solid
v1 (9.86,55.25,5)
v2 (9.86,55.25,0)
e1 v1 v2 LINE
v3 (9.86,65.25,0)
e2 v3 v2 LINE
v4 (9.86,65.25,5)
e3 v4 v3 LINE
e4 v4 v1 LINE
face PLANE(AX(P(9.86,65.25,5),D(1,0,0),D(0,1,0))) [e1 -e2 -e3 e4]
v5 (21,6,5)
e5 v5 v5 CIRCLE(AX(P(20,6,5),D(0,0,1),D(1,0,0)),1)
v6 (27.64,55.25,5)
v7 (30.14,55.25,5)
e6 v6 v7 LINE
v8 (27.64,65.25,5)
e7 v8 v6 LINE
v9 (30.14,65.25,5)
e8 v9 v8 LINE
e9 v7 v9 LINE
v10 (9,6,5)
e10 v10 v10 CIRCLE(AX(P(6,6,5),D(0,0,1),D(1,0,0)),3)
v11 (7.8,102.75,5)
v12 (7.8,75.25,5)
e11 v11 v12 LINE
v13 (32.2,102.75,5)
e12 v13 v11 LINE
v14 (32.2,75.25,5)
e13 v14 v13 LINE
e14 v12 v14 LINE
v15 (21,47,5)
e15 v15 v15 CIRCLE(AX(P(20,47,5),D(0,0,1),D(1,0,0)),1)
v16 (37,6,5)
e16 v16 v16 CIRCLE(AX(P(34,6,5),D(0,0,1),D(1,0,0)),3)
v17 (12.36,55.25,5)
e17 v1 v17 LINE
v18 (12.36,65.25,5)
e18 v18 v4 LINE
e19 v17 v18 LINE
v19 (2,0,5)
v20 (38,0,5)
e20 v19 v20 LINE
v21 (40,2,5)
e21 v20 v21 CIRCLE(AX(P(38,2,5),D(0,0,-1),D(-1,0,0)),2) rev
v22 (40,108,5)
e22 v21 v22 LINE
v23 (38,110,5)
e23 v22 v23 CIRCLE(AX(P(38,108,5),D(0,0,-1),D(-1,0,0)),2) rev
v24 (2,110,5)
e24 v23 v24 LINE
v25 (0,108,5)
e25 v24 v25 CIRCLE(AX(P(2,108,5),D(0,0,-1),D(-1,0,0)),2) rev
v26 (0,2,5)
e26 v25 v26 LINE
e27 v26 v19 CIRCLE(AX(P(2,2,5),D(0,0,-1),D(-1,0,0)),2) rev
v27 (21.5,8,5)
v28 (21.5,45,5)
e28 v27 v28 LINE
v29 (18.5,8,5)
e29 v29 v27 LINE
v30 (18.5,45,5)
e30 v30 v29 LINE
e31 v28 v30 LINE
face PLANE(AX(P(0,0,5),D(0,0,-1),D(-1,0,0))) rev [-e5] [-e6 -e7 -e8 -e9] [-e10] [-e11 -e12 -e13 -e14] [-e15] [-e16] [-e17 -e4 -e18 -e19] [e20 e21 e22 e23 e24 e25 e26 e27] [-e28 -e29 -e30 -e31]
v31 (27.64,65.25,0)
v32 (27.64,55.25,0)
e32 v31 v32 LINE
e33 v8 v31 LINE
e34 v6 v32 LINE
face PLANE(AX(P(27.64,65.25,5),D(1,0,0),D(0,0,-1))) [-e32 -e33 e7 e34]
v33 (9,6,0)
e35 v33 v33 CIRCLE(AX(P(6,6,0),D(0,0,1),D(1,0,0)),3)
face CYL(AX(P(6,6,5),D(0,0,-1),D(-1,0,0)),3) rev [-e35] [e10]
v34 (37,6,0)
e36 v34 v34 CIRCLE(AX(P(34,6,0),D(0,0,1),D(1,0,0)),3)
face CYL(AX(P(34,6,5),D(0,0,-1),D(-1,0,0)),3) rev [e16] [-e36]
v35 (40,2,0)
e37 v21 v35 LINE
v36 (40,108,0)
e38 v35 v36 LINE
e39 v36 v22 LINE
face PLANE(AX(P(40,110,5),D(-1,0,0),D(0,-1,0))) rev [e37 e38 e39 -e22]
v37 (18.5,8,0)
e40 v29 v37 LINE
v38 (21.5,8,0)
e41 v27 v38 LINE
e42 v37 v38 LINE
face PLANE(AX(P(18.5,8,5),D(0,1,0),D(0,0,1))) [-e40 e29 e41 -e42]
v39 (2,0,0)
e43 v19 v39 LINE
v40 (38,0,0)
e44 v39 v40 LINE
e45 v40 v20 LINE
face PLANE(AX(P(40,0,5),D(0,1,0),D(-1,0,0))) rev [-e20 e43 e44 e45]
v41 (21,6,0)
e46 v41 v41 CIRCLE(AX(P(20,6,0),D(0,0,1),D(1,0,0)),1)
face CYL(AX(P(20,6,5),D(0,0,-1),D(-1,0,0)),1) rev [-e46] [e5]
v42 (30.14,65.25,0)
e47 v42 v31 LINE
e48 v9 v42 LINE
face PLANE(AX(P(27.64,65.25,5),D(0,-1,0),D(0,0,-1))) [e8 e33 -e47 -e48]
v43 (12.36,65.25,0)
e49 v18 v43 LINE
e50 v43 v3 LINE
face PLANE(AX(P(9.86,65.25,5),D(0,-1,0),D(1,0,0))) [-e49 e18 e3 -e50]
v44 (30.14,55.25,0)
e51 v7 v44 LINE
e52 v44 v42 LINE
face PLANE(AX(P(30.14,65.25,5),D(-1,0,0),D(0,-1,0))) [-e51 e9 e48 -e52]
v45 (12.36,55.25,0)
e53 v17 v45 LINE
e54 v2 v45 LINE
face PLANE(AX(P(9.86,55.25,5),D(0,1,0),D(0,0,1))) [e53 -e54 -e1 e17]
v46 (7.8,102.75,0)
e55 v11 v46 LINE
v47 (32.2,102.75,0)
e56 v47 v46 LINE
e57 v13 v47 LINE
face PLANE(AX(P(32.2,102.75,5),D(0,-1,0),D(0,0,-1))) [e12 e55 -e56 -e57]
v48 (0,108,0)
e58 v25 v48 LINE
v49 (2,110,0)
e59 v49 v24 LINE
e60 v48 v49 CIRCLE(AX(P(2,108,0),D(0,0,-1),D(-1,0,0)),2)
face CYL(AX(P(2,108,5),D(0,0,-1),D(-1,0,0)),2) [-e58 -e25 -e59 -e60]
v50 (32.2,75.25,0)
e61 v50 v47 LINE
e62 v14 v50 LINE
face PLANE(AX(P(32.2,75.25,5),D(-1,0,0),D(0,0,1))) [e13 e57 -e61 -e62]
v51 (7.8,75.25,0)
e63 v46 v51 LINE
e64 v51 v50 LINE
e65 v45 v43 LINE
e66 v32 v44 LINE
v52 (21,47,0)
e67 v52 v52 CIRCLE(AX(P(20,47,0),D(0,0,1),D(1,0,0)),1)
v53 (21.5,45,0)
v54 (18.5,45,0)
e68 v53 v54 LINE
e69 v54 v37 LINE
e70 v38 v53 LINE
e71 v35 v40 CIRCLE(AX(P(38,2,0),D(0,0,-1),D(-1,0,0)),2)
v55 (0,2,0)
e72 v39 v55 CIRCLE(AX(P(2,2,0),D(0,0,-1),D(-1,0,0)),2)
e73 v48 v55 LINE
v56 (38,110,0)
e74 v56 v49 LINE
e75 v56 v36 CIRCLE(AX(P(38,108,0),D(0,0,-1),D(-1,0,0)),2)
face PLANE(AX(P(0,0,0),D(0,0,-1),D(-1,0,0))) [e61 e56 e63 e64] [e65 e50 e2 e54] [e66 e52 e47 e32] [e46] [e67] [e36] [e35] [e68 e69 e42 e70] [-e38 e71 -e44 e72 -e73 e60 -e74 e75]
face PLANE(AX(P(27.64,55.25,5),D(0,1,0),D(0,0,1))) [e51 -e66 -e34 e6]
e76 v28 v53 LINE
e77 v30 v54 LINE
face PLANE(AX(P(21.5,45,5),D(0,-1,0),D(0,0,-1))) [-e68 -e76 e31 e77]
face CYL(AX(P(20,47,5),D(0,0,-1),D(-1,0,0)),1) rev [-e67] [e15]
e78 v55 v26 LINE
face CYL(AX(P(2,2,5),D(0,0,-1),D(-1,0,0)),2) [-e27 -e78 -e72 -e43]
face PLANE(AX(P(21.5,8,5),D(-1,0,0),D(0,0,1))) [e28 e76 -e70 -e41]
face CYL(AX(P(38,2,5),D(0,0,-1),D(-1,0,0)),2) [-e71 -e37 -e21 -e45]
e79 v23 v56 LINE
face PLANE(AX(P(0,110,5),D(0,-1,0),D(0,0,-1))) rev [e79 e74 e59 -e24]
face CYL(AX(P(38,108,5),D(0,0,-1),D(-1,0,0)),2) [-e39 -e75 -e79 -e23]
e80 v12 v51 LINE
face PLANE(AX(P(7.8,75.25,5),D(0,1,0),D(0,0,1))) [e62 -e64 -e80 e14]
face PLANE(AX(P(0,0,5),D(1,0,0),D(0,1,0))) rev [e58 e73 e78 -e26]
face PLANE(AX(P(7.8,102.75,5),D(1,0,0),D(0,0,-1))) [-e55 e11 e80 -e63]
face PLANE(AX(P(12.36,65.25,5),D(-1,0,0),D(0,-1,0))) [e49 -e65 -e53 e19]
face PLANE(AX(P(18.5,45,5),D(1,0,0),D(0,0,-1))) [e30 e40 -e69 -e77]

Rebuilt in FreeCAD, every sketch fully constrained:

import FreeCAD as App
import Part
import Sketcher

V = App.Vector


def edges_at(feature, points):
    """Names of the edges that pass closest to the given points."""
    edges = feature.Shape.Edges
    near = lambda p: min(range(len(edges)), key=lambda i: edges[i].distToShape(Part.Vertex(*p))[0])
    return sorted({f"Edge{near(p) + 1}" for p in points})

doc = App.newDocument("Part")
params = doc.addObject("Spreadsheet::Sheet", "Params")
for row, (alias, value) in enumerate([
    ("sketch1_diameter", "6 mm"),
    ("sketch1_diameter2", "2 mm"),
    ("sketch1_width", "40 mm"),
    ("sketch1_width2", "3 mm"),
    ("sketch1_height", "110 mm"),
    ("pad1_length", "5 mm"),
    ("fillet_radius", "2 mm"),
], start=1):
    params.set(f"A{row}", alias)
    params.set(f"B{row}", "=" + value)
    params.setAlias(f"B{row}", alias)

body = doc.addObject("PartDesign::Body", "Body")

sketch1 = body.newObject("Sketcher::SketchObject", "Sketch")
sketch1.AttachmentSupport = (doc.getObject("XY_Plane"), [""])
sketch1.MapMode = "FlatFace"
sketch1.addGeometry([
    Part.LineSegment(V(0, 110, 0), V(0, 0, 0)),
    Part.LineSegment(V(0, 0, 0), V(40, 0, 0)),
    Part.LineSegment(V(40, 0, 0), V(40, 110, 0)),
    Part.LineSegment(V(40, 110, 0), V(0, 110, 0)),
    Part.Circle(V(6, 6, 0), V(0, 0, 1), 3),
    Part.Circle(V(20, 6, 0), V(0, 0, 1), 1),
    Part.LineSegment(V(21.5, 8, 0), V(18.5, 8, 0)),
    Part.LineSegment(V(18.5, 8, 0), V(18.5, 45, 0)),
    Part.LineSegment(V(18.5, 45, 0), V(21.5, 45, 0)),
    Part.LineSegment(V(21.5, 45, 0), V(21.5, 8, 0)),
    Part.Circle(V(34, 6, 0), V(0, 0, 1), 3),
    Part.Circle(V(20, 47, 0), V(0, 0, 1), 1),
    Part.LineSegment(V(12.4, 55.2, 0), V(9.9, 55.2, 0)),
    Part.LineSegment(V(9.9, 55.2, 0), V(9.9, 65.2, 0)),
    Part.LineSegment(V(9.9, 65.2, 0), V(12.4, 65.2, 0)),
    Part.LineSegment(V(12.4, 65.2, 0), V(12.4, 55.2, 0)),
    Part.LineSegment(V(30.1, 55.2, 0), V(27.6, 55.2, 0)),
    Part.LineSegment(V(27.6, 55.2, 0), V(27.6, 65.2, 0)),
    Part.LineSegment(V(27.6, 65.2, 0), V(30.1, 65.2, 0)),
    Part.LineSegment(V(30.1, 65.2, 0), V(30.1, 55.2, 0)),
    Part.LineSegment(V(32.2, 75.2, 0), V(7.8, 75.2, 0)),
    Part.LineSegment(V(7.8, 75.2, 0), V(7.8, 102.8, 0)),
    Part.LineSegment(V(7.8, 102.8, 0), V(32.2, 102.8, 0)),
    Part.LineSegment(V(32.2, 102.8, 0), V(32.2, 75.2, 0)),
], False)
sketch1.addConstraint([
    Sketcher.Constraint("Coincident", 0, 2, 1, 1),
    Sketcher.Constraint("Coincident", 1, 2, 2, 1),
    Sketcher.Constraint("Coincident", 2, 2, 3, 1),
    Sketcher.Constraint("Coincident", 3, 2, 0, 1),
    Sketcher.Constraint("Coincident", 6, 2, 7, 1),
    Sketcher.Constraint("Coincident", 7, 2, 8, 1),
    Sketcher.Constraint("Coincident", 8, 2, 9, 1),
    Sketcher.Constraint("Coincident", 9, 2, 6, 1),
    Sketcher.Constraint("Coincident", 12, 2, 13, 1),
    Sketcher.Constraint("Coincident", 13, 2, 14, 1),
    Sketcher.Constraint("Coincident", 14, 2, 15, 1),
    Sketcher.Constraint("Coincident", 15, 2, 12, 1),
    Sketcher.Constraint("Coincident", 16, 2, 17, 1),
    Sketcher.Constraint("Coincident", 17, 2, 18, 1),
    Sketcher.Constraint("Coincident", 18, 2, 19, 1),
    Sketcher.Constraint("Coincident", 19, 2, 16, 1),
    Sketcher.Constraint("Coincident", 20, 2, 21, 1),
    Sketcher.Constraint("Coincident", 21, 2, 22, 1),
    Sketcher.Constraint("Coincident", 22, 2, 23, 1),
    Sketcher.Constraint("Coincident", 23, 2, 20, 1),
    Sketcher.Constraint("Vertical", 0),
    Sketcher.Constraint("Horizontal", 1),
    Sketcher.Constraint("Vertical", 2),
    Sketcher.Constraint("Horizontal", 3),
    Sketcher.Constraint("Horizontal", 6),
    Sketcher.Constraint("Vertical", 7),
    Sketcher.Constraint("Horizontal", 8),
    Sketcher.Constraint("Vertical", 9),
    Sketcher.Constraint("Horizontal", 12),
    Sketcher.Constraint("Vertical", 13),
    Sketcher.Constraint("Horizontal", 14),
    Sketcher.Constraint("Vertical", 15),
    Sketcher.Constraint("Horizontal", 16),
    Sketcher.Constraint("Vertical", 17),
    Sketcher.Constraint("Horizontal", 18),
    Sketcher.Constraint("Vertical", 19),
    Sketcher.Constraint("Horizontal", 20),
    Sketcher.Constraint("Vertical", 21),
    Sketcher.Constraint("Horizontal", 22),
    Sketcher.Constraint("Vertical", 23),
    Sketcher.Constraint("Coincident", 0, 2, -1, 1),
    Sketcher.Constraint("Equal", 4, 10),
    Sketcher.Constraint("Equal", 5, 11),
    Sketcher.Constraint("Horizontal", 4, 3, 5, 3),
    Sketcher.Constraint("Horizontal", 5, 3, 10, 3),
    Sketcher.Constraint("Horizontal", 15, 2, 16, 2),
    Sketcher.Constraint("Horizontal", 14, 2, 17, 2),
    Sketcher.Constraint("Vertical", 5, 3, 11, 3),
    Sketcher.Constraint("Equal", 14, 16),
    Sketcher.Constraint("Diameter", 4, 6.0),
    Sketcher.Constraint("Diameter", 5, 2.0),
    Sketcher.Constraint("DistanceX", 1, 1, 1, 2, 40.0),
    Sketcher.Constraint("DistanceX", 6, 2, 6, 1, 3.0),
    Sketcher.Constraint("DistanceY", 0, 2, 0, 1, 110.0),
    Sketcher.Constraint("DistanceY", 7, 1, 7, 2, 37.0),
    Sketcher.Constraint("DistanceY", 13, 1, 13, 2, 10.0),
    Sketcher.Constraint("DistanceX", 12, 2, 12, 1, 2.5),
    Sketcher.Constraint("DistanceX", 20, 2, 20, 1, 24.4),
    Sketcher.Constraint("DistanceY", 21, 1, 21, 2, 27.5),
    Sketcher.Constraint("DistanceX", -1, 1, 4, 3, 6.0),
    Sketcher.Constraint("DistanceY", -1, 1, 4, 3, 6.0),
    Sketcher.Constraint("DistanceX", -1, 1, 5, 3, 20.0),
    Sketcher.Constraint("DistanceX", -1, 1, 10, 3, 34.0),
    Sketcher.Constraint("DistanceY", -1, 1, 11, 3, 47.0),
    Sketcher.Constraint("DistanceY", -1, 1, 6, 2, 8.0),
    Sketcher.Constraint("DistanceY", 13, 2, 20, 2, 10.0),
    Sketcher.Constraint("DistanceX", -1, 1, 6, 2, 18.5),
    Sketcher.Constraint("DistanceX", -1, 1, 20, 2, 7.8),
    Sketcher.Constraint("DistanceX", -1, 1, 12, 2, 9.86),
    Sketcher.Constraint("DistanceY", -1, 1, 12, 2, 55.25),
    Sketcher.Constraint("DistanceX", -1, 1, 16, 2, 27.64),
])
sketch1.setExpression("Constraints[49]", "Params.sketch1_diameter")
sketch1.setExpression("Constraints[50]", "Params.sketch1_diameter2")
sketch1.setExpression("Constraints[51]", "Params.sketch1_width")
sketch1.setExpression("Constraints[52]", "Params.sketch1_width2")
sketch1.setExpression("Constraints[53]", "Params.sketch1_height")
pad1 = body.newObject("PartDesign::Pad", "Pad")
pad1.Profile = sketch1
pad1.setExpression("Length", "Params.pad1_length")
doc.recompute()

fillet = body.newObject("PartDesign::Fillet", "Fillet")
fillet.Base = (pad1, edges_at(pad1, [
    (0, 0, 2.5),
    (0, 110, 2.5),
    (40, 110, 2.5),
    (40, 0, 2.5),
]))
fillet.setExpression("Radius", "Params.fillet_radius")

doc.recompute()
